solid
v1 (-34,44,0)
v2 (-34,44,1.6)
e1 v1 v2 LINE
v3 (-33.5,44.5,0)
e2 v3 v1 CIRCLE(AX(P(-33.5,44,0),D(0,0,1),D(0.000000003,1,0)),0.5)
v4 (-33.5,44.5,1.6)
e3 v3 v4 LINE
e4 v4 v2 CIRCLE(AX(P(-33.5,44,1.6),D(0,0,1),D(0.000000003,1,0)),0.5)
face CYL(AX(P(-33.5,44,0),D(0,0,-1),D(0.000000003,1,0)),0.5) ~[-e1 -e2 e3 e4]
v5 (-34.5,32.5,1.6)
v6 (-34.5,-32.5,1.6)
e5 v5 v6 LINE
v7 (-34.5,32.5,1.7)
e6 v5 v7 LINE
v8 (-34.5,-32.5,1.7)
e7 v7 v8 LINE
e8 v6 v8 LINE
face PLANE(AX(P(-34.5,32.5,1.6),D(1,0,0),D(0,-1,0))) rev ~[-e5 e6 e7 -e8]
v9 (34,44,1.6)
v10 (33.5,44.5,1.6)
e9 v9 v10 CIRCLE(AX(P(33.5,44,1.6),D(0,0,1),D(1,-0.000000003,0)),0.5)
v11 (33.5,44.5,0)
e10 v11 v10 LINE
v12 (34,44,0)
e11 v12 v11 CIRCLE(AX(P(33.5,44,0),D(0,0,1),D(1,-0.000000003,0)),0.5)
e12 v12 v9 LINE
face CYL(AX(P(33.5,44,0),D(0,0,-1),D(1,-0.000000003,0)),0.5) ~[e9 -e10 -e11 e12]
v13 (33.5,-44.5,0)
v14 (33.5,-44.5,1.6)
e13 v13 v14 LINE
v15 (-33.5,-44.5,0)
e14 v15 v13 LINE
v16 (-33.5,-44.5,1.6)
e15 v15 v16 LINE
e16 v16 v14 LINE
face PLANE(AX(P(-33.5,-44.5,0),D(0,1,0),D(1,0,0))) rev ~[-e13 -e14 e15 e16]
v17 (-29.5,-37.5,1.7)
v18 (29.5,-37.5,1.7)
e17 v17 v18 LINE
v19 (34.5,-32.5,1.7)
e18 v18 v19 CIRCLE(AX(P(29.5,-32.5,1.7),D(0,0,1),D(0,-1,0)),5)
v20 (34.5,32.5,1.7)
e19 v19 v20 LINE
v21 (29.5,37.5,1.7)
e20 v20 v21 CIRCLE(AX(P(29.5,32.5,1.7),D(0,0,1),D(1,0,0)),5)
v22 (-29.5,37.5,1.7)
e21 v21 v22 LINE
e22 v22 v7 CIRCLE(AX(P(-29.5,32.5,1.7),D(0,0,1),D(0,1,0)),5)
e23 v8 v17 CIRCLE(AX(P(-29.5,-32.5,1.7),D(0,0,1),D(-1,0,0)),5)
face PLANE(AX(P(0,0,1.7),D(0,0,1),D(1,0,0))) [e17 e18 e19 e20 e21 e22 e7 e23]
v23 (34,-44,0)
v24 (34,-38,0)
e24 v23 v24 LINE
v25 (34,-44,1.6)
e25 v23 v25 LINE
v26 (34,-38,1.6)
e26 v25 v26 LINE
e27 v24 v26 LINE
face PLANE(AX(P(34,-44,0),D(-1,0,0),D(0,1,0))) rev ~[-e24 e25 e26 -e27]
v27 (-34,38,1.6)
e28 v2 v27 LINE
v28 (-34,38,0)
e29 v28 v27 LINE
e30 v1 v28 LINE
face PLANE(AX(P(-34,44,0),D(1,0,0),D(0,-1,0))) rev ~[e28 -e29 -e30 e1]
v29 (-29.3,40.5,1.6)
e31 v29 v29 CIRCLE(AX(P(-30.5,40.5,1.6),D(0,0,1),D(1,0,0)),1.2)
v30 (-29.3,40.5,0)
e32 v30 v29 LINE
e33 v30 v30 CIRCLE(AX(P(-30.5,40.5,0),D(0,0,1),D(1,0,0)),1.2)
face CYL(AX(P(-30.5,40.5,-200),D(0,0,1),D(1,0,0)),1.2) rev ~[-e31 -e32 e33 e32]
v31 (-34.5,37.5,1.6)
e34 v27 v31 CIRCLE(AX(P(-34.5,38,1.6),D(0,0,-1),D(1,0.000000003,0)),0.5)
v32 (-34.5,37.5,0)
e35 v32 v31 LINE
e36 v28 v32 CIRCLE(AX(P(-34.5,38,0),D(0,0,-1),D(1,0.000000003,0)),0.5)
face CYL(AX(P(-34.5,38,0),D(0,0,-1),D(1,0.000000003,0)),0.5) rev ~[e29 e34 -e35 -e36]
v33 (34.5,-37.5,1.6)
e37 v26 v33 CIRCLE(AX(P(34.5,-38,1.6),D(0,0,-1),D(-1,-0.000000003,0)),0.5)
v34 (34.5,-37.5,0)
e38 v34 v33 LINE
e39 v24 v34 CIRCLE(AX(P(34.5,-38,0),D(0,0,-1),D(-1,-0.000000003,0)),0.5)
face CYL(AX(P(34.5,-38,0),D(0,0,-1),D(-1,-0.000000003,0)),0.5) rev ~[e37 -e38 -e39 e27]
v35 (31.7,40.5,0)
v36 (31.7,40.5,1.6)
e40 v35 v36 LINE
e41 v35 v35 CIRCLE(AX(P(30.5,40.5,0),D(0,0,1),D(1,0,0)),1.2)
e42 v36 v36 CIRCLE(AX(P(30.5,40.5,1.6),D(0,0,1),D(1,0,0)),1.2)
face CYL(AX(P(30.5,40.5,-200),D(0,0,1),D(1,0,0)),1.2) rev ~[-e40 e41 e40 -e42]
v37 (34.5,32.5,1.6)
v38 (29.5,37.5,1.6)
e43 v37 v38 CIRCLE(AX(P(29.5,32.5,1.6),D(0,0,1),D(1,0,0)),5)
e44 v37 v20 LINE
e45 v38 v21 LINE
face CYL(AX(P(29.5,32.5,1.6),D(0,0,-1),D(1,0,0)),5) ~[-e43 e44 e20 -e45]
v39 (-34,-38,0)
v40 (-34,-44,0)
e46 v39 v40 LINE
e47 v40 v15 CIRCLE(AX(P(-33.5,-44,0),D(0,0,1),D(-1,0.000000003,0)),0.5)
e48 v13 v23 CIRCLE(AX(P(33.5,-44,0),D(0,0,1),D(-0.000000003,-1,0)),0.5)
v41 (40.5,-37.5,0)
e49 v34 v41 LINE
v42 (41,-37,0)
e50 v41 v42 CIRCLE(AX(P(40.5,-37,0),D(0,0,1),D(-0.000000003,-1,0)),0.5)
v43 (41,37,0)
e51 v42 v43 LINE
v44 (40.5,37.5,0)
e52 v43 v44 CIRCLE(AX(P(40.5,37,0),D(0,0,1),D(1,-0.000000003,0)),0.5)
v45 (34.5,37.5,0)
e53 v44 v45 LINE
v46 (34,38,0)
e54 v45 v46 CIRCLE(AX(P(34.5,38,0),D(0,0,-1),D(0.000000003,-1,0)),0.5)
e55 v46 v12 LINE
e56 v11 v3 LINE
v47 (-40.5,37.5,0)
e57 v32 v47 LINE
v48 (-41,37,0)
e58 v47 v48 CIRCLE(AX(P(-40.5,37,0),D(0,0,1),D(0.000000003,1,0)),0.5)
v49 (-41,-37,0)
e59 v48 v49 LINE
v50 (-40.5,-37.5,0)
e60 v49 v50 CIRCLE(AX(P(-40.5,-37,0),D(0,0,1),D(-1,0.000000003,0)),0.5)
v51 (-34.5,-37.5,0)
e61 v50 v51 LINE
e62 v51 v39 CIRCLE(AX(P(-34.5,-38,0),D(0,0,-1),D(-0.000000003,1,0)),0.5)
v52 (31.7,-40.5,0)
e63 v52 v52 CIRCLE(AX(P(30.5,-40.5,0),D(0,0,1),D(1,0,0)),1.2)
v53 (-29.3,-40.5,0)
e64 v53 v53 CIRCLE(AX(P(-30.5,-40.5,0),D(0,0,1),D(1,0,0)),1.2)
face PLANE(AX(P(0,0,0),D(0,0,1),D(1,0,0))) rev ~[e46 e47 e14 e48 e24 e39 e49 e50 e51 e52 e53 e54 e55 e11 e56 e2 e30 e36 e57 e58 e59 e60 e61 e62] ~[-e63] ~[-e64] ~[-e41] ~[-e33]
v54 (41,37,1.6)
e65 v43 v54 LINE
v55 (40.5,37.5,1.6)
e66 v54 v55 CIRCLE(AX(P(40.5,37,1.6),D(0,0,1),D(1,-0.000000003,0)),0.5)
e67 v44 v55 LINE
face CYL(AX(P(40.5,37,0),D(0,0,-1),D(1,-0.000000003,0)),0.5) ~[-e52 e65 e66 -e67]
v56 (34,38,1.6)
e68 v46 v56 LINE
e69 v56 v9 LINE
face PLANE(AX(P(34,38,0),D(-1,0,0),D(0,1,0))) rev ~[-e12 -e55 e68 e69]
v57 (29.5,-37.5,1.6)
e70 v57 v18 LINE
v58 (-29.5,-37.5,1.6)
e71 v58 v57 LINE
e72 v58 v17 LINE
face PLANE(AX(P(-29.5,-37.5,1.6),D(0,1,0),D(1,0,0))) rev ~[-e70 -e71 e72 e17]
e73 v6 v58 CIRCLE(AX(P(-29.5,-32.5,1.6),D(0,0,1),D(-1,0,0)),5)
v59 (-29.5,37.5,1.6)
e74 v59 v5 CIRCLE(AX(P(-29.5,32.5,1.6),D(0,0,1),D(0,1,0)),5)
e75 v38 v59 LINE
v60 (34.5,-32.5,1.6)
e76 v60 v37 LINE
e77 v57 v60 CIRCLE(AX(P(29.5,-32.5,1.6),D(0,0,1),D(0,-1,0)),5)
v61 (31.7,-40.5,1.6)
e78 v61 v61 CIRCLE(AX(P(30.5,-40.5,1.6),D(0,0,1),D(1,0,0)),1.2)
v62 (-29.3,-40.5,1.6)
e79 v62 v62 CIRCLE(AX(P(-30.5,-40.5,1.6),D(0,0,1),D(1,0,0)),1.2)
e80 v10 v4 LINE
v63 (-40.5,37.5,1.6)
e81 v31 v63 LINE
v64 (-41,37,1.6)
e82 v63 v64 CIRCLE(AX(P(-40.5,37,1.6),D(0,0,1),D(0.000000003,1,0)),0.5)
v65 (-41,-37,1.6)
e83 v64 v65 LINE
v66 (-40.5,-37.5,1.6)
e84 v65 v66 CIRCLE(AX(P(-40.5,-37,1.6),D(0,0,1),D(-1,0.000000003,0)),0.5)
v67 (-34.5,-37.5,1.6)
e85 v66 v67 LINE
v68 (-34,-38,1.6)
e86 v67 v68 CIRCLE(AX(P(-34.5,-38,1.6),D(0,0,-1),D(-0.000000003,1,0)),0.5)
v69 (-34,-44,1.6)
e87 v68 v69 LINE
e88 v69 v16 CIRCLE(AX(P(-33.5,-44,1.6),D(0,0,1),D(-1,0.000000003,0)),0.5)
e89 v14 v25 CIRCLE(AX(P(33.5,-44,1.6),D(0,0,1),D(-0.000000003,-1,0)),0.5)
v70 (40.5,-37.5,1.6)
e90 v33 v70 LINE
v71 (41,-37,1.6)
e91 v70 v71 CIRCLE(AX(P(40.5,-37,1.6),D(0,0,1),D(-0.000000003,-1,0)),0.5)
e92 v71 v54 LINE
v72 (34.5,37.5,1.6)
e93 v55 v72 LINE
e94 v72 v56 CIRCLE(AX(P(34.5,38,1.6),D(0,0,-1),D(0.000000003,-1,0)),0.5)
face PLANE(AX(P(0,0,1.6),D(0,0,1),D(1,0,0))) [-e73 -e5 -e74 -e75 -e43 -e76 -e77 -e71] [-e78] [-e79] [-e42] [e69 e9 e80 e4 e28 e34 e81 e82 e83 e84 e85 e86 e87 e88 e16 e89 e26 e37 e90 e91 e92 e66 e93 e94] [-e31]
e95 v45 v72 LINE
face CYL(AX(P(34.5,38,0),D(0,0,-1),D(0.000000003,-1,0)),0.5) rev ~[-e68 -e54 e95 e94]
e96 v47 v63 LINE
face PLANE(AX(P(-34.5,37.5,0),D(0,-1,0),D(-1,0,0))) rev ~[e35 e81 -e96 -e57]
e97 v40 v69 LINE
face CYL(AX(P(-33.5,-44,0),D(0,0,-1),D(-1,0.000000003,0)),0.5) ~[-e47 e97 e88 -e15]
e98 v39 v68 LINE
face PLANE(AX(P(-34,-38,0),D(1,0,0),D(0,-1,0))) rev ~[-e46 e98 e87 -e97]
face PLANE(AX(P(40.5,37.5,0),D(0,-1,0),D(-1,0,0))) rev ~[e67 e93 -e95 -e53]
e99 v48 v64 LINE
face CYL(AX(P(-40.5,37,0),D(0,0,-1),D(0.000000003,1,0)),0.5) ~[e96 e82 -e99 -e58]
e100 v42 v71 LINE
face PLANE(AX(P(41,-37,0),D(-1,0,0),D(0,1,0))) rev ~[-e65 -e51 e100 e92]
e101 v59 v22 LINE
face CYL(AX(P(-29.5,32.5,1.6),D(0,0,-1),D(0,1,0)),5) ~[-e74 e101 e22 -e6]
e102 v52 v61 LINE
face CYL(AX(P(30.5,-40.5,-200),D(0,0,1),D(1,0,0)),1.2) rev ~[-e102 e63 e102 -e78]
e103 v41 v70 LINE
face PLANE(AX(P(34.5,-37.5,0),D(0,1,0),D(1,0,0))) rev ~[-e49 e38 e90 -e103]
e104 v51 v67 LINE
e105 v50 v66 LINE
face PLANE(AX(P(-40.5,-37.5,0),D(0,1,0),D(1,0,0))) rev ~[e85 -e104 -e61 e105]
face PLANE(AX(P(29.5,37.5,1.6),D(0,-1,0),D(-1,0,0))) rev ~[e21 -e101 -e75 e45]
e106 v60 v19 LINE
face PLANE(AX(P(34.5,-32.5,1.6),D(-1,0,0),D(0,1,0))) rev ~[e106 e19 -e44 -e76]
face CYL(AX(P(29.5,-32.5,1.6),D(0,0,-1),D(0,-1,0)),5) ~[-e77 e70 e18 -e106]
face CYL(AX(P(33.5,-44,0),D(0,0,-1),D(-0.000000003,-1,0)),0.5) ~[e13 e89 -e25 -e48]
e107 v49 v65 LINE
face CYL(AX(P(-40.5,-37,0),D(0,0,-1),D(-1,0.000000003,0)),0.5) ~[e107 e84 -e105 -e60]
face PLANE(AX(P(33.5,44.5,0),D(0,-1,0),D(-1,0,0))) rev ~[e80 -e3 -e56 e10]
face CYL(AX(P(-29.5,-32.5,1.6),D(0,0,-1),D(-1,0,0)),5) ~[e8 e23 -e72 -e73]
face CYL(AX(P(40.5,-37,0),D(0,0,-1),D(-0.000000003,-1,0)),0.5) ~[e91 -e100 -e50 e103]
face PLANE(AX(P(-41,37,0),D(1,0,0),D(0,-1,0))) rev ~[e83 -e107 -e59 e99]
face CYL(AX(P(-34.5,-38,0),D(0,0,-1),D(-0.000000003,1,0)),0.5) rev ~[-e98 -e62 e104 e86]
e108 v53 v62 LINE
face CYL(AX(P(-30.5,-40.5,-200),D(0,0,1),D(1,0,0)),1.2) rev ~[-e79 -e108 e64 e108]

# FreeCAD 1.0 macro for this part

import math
import FreeCAD as App
import Part
import Sketcher
from FreeCAD import Vector

doc = App.newDocument("Part")
params = doc.addObject("Spreadsheet::Sheet", "Params")
for row, (alias, value) in enumerate([
    ("sketch1_radius", "0.5 mm"),
    ("sketch1_width", "6 mm"),
    ("sketch1_width2", "67 mm"),
    ("sketch1_height", "74 mm"),
    ("pad1_length", "1.6 mm"),
    ("sketch2_radius", "5 mm"),
    ("sketch2_width", "59 mm"),
    ("sketch2_height", "65 mm"),
    ("pad2_length", "0.1 mm"),
    ("sketch3_diameter", "2.4 mm"),
    ("hole_diameter", "2.4 mm"),
    ("hole_depth", "200 mm"),
], start=1):
    params.set(f"A{row}", alias)
    params.set(f"B{row}", "=" + value)
    params.setAlias(f"B{row}", alias)

body = doc.addObject("PartDesign::Body", "Body")

# Sketch on XY plane
sketch1 = body.newObject("Sketcher::SketchObject", "Sketch")
sketch1.AttachmentSupport = (doc.getObject("XY_Plane"), [""])
sketch1.MapMode = "FlatFace"
sketch1.addGeometry(Part.LineSegment(Vector(-34, 44, 0), Vector(-34, 38, 0)), False)
sketch1.addGeometry(Part.ArcOfCircle(Part.Circle(Vector(-34.5, 38, 0), Vector(0, 0, 1), 0.5), math.radians(-90), math.radians(0)), False)
sketch1.addGeometry(Part.LineSegment(Vector(-34.5, 37.5, 0), Vector(-40.5, 37.5, 0)), False)
sketch1.addGeometry(Part.ArcOfCircle(Part.Circle(Vector(-40.5, 37, 0), Vector(0, 0, 1), 0.5), math.radians(90), math.radians(180)), False)
sketch1.addGeometry(Part.LineSegment(Vector(-41, 37, 0), Vector(-41, -37, 0)), False)
sketch1.addGeometry(Part.ArcOfCircle(Part.Circle(Vector(-40.5, -37, 0), Vector(0, 0, 1), 0.5), math.radians(180), math.radians(270)), False)
sketch1.addGeometry(Part.LineSegment(Vector(-40.5, -37.5, 0), Vector(-34.5, -37.5, 0)), False)
sketch1.addGeometry(Part.ArcOfCircle(Part.Circle(Vector(-34.5, -38, 0), Vector(0, 0, 1), 0.5), math.radians(0), math.radians(90)), False)
sketch1.addGeometry(Part.LineSegment(Vector(-34, -38, 0), Vector(-34, -44, 0)), False)
sketch1.addGeometry(Part.ArcOfCircle(Part.Circle(Vector(-33.5, -44, 0), Vector(0, 0, 1), 0.5), math.radians(180), math.radians(270)), False)
sketch1.addGeometry(Part.LineSegment(Vector(-33.5, -44.5, 0), Vector(33.5, -44.5, 0)), False)
sketch1.addGeometry(Part.ArcOfCircle(Part.Circle(Vector(33.5, -44, 0), Vector(0, 0, 1), 0.5), math.radians(-90), math.radians(0)), False)
sketch1.addGeometry(Part.LineSegment(Vector(34, -44, 0), Vector(34, -38, 0)), False)
sketch1.addGeometry(Part.ArcOfCircle(Part.Circle(Vector(34.5, -38, 0), Vector(0, 0, 1), 0.5), math.radians(90), math.radians(180)), False)
sketch1.addGeometry(Part.LineSegment(Vector(34.5, -37.5, 0), Vector(40.5, -37.5, 0)), False)
sketch1.addGeometry(Part.ArcOfCircle(Part.Circle(Vector(40.5, -37, 0), Vector(0, 0, 1), 0.5), math.radians(-90), math.radians(0)), False)
sketch1.addGeometry(Part.LineSegment(Vector(41, -37, 0), Vector(41, 37, 0)), False)
sketch1.addGeometry(Part.ArcOfCircle(Part.Circle(Vector(40.5, 37, 0), Vector(0, 0, 1), 0.5), math.radians(0), math.radians(90)), False)
sketch1.addGeometry(Part.LineSegment(Vector(40.5, 37.5, 0), Vector(34.5, 37.5, 0)), False)
sketch1.addGeometry(Part.ArcOfCircle(Part.Circle(Vector(34.5, 38, 0), Vector(0, 0, 1), 0.5), math.radians(180), math.radians(270)), False)
sketch1.addGeometry(Part.LineSegment(Vector(34, 38, 0), Vector(34, 44, 0)), False)
sketch1.addGeometry(Part.ArcOfCircle(Part.Circle(Vector(33.5, 44, 0), Vector(0, 0, 1), 0.5), math.radians(0), math.radians(90)), False)
sketch1.addGeometry(Part.LineSegment(Vector(33.5, 44.5, 0), Vector(-33.5, 44.5, 0)), False)
sketch1.addGeometry(Part.ArcOfCircle(Part.Circle(Vector(-33.5, 44, 0), Vector(0, 0, 1), 0.5), math.radians(90), math.radians(180)), False)
sketch1.addConstraint(Sketcher.Constraint("Tangent", 0, 2, 1, 2))
sketch1.addConstraint(Sketcher.Constraint("Tangent", 1, 1, 2, 1))
sketch1.addConstraint(Sketcher.Constraint("Tangent", 2, 2, 3, 1))
sketch1.addConstraint(Sketcher.Constraint("Tangent", 3, 2, 4, 1))
sketch1.addConstraint(Sketcher.Constraint("Tangent", 4, 2, 5, 1))
sketch1.addConstraint(Sketcher.Constraint("Tangent", 5, 2, 6, 1))
sketch1.addConstraint(Sketcher.Constraint("Tangent", 6, 2, 7, 2))
sketch1.addConstraint(Sketcher.Constraint("Tangent", 7, 1, 8, 1))
sketch1.addConstraint(Sketcher.Constraint("Tangent", 8, 2, 9, 1))
sketch1.addConstraint(Sketcher.Constraint("Tangent", 9, 2, 10, 1))
sketch1.addConstraint(Sketcher.Constraint("Tangent", 10, 2, 11, 1))
sketch1.addConstraint(Sketcher.Constraint("Tangent", 11, 2, 12, 1))
sketch1.addConstraint(Sketcher.Constraint("Tangent", 12, 2, 13, 2))
sketch1.addConstraint(Sketcher.Constraint("Tangent", 13, 1, 14, 1))
sketch1.addConstraint(Sketcher.Constraint("Tangent", 14, 2, 15, 1))
sketch1.addConstraint(Sketcher.Constraint("Tangent", 15, 2, 16, 1))
sketch1.addConstraint(Sketcher.Constraint("Tangent", 16, 2, 17, 1))
sketch1.addConstraint(Sketcher.Constraint("Tangent", 17, 2, 18, 1))
sketch1.addConstraint(Sketcher.Constraint("Tangent", 18, 2, 19, 2))
sketch1.addConstraint(Sketcher.Constraint("Tangent", 19, 1, 20, 1))
sketch1.addConstraint(Sketcher.Constraint("Tangent", 20, 2, 21, 1))
sketch1.addConstraint(Sketcher.Constraint("Tangent", 21, 2, 22, 1))
sketch1.addConstraint(Sketcher.Constraint("Tangent", 22, 2, 23, 1))
sketch1.addConstraint(Sketcher.Constraint("Tangent", 23, 2, 0, 1))
sketch1.addConstraint(Sketcher.Constraint("Vertical", 0))
sketch1.addConstraint(Sketcher.Constraint("Horizontal", 2))
sketch1.addConstraint(Sketcher.Constraint("Vertical", 4))
sketch1.addConstraint(Sketcher.Constraint("Horizontal", 6))
sketch1.addConstraint(Sketcher.Constraint("Vertical", 8))
sketch1.addConstraint(Sketcher.Constraint("Horizontal", 10))
sketch1.addConstraint(Sketcher.Constraint("Vertical", 12))
sketch1.addConstraint(Sketcher.Constraint("Horizontal", 14))
sketch1.addConstraint(Sketcher.Constraint("Vertical", 16))
sketch1.addConstraint(Sketcher.Constraint("Horizontal", 18))
sketch1.addConstraint(Sketcher.Constraint("Vertical", 20))
sketch1.addConstraint(Sketcher.Constraint("Horizontal", 22))
sketch1.addConstraint(Sketcher.Constraint("Equal", 1, 3))
sketch1.addConstraint(Sketcher.Constraint("Equal", 3, 5))
sketch1.addConstraint(Sketcher.Constraint("Equal", 5, 7))
sketch1.addConstraint(Sketcher.Constraint("Equal", 7, 9))
sketch1.addConstraint(Sketcher.Constraint("Equal", 9, 11))
sketch1.addConstraint(Sketcher.Constraint("Equal", 11, 13))
sketch1.addConstraint(Sketcher.Constraint("Equal", 13, 15))
sketch1.addConstraint(Sketcher.Constraint("Equal", 15, 17))
sketch1.addConstraint(Sketcher.Constraint("Equal", 17, 19))
sketch1.addConstraint(Sketcher.Constraint("Equal", 19, 21))
sketch1.addConstraint(Sketcher.Constraint("Equal", 21, 23))
sketch1.addConstraint(Sketcher.Constraint("Symmetric", 1, 3, 13, 3, -1, 1))
sketch1.addConstraint(Sketcher.Constraint("Symmetric", 5, 3, 17, 3, -1, 1))
sketch1.addConstraint(Sketcher.Constraint("Symmetric", 9, 3, 21, 3, -1, 1))
sketch1.addConstraint(Sketcher.Constraint("Symmetric", 7, 3, 13, 3, -2))
sketch1.addConstraint(Sketcher.Constraint("Equal", 18, 0))
sketch1.addConstraint(Sketcher.Constraint("Radius", 1, 0.5))
sketch1.addConstraint(Sketcher.Constraint("DistanceX", 2, 2, 2, 1, 6.0))
sketch1.addConstraint(Sketcher.Constraint("DistanceX", 10, 1, 10, 2, 67.0))
sketch1.addConstraint(Sketcher.Constraint("DistanceY", 4, 2, 4, 1, 74.0))
sketch1.setExpression("Constraints[52]", "Params.sketch1_radius")
sketch1.setExpression("Constraints[53]", "Params.sketch1_width")
sketch1.setExpression("Constraints[54]", "Params.sketch1_width2")
sketch1.setExpression("Constraints[55]", "Params.sketch1_height")
pad1 = body.newObject("PartDesign::Pad", "Pad")
pad1.Profile = sketch1
pad1.setExpression("Length", "Params.pad1_length")

# Sketch on XY plane
sketch2 = body.newObject("Sketcher::SketchObject", "Sketch001")
sketch2.AttachmentSupport = (doc.getObject("XY_Plane"), [""])
sketch2.MapMode = "FlatFace"
sketch2.AttachmentOffset = App.Placement(Vector(0, 0, 1.6), App.Rotation())
sketch2.addGeometry(Part.LineSegment(Vector(-29.5, -37.5, 0), Vector(29.5, -37.5, 0)), False)
sketch2.addGeometry(Part.ArcOfCircle(Part.Circle(Vector(29.5, -32.5, 0), Vector(0, 0, 1), 5), math.radians(-90), math.radians(0)), False)
sketch2.addGeometry(Part.LineSegment(Vector(34.5, -32.5, 0), Vector(34.5, 32.5, 0)), False)
sketch2.addGeometry(Part.ArcOfCircle(Part.Circle(Vector(29.5, 32.5, 0), Vector(0, 0, 1), 5), math.radians(0), math.radians(90)), False)
sketch2.addGeometry(Part.LineSegment(Vector(29.5, 37.5, 0), Vector(-29.5, 37.5, 0)), False)
sketch2.addGeometry(Part.ArcOfCircle(Part.Circle(Vector(-29.5, 32.5, 0), Vector(0, 0, 1), 5), math.radians(90), math.radians(180)), False)
sketch2.addGeometry(Part.LineSegment(Vector(-34.5, 32.5, 0), Vector(-34.5, -32.5, 0)), False)
sketch2.addGeometry(Part.ArcOfCircle(Part.Circle(Vector(-29.5, -32.5, 0), Vector(0, 0, 1), 5), math.radians(180), math.radians(270)), False)
sketch2.addConstraint(Sketcher.Constraint("Tangent", 0, 2, 1, 1))
sketch2.addConstraint(Sketcher.Constraint("Tangent", 1, 2, 2, 1))
sketch2.addConstraint(Sketcher.Constraint("Tangent", 2, 2, 3, 1))
sketch2.addConstraint(Sketcher.Constraint("Tangent", 3, 2, 4, 1))
sketch2.addConstraint(Sketcher.Constraint("Tangent", 4, 2, 5, 1))
sketch2.addConstraint(Sketcher.Constraint("Tangent", 5, 2, 6, 1))
sketch2.addConstraint(Sketcher.Constraint("Tangent", 6, 2, 7, 1))
sketch2.addConstraint(Sketcher.Constraint("Tangent", 7, 2, 0, 1))
sketch2.addConstraint(Sketcher.Constraint("Horizontal", 0))
sketch2.addConstraint(Sketcher.Constraint("Vertical", 2))
sketch2.addConstraint(Sketcher.Constraint("Horizontal", 4))
sketch2.addConstraint(Sketcher.Constraint("Vertical", 6))
sketch2.addConstraint(Sketcher.Constraint("Equal", 1, 3))
sketch2.addConstraint(Sketcher.Constraint("Equal", 3, 5))
sketch2.addConstraint(Sketcher.Constraint("Equal", 5, 7))
sketch2.addConstraint(Sketcher.Constraint("Symmetric", 1, 3, 5, 3, -1, 1))
sketch2.addConstraint(Sketcher.Constraint("Radius", 1, 5.0))
sketch2.addConstraint(Sketcher.Constraint("DistanceX", 0, 1, 0, 2, 59.0))
sketch2.addConstraint(Sketcher.Constraint("DistanceY", 2, 1, 2, 2, 65.0))
sketch2.setExpression("Constraints[16]", "Params.sketch2_radius")
sketch2.setExpression("Constraints[17]", "Params.sketch2_width")
sketch2.setExpression("Constraints[18]", "Params.sketch2_height")
pad2 = body.newObject("PartDesign::Pad", "Pad001")
pad2.Profile = sketch2
pad2.setExpression("Length", "Params.pad2_length")

# Sketch on XY plane
sketch3 = body.newObject("Sketcher::SketchObject", "Sketch002")
sketch3.AttachmentSupport = (doc.getObject("XY_Plane"), [""])
sketch3.MapMode = "FlatFace"
sketch3.addGeometry(Part.Circle(Vector(30.5, 40.5, 0), Vector(0, 0, 1), 1.2), False)
sketch3.addGeometry(Part.Circle(Vector(-30.5, 40.5, 0), Vector(0, 0, 1), 1.2), False)
sketch3.addGeometry(Part.Circle(Vector(30.5, -40.5, 0), Vector(0, 0, 1), 1.2), False)
sketch3.addGeometry(Part.Circle(Vector(-30.5, -40.5, 0), Vector(0, 0, 1), 1.2), False)
sketch3.addConstraint(Sketcher.Constraint("Equal", 0, 1))
sketch3.addConstraint(Sketcher.Constraint("Equal", 1, 2))
sketch3.addConstraint(Sketcher.Constraint("Equal", 2, 3))
sketch3.addConstraint(Sketcher.Constraint("Symmetric", 1, 3, 2, 3, -1, 1))
sketch3.addConstraint(Sketcher.Constraint("Symmetric", 0, 3, 3, 3, -1, 1))
sketch3.addConstraint(Sketcher.Constraint("Symmetric", 0, 3, 1, 3, -2))
sketch3.addConstraint(Sketcher.Constraint("Diameter", 0, 2.4))
sketch3.addConstraint(Sketcher.Constraint("DistanceX", 1, 3, 0, 3, 61.0))
sketch3.addConstraint(Sketcher.Constraint("DistanceY", 2, 3, 0, 3, 81.0))
sketch3.setExpression("Constraints[6]", "Params.sketch3_diameter")
doc.recompute()
hole = body.newObject("PartDesign::Hole", "Hole")
hole.Profile = sketch3
hole.ThreadType = "None"
hole.setExpression("Diameter", "Params.hole_diameter")
hole.DepthType = "Dimension"
hole.setExpression("Depth", "Params.hole_depth")
hole.DrillPoint = "Angled"
hole.DrillPointAngle = 118
hole.Reversed = True

doc.recompute()
